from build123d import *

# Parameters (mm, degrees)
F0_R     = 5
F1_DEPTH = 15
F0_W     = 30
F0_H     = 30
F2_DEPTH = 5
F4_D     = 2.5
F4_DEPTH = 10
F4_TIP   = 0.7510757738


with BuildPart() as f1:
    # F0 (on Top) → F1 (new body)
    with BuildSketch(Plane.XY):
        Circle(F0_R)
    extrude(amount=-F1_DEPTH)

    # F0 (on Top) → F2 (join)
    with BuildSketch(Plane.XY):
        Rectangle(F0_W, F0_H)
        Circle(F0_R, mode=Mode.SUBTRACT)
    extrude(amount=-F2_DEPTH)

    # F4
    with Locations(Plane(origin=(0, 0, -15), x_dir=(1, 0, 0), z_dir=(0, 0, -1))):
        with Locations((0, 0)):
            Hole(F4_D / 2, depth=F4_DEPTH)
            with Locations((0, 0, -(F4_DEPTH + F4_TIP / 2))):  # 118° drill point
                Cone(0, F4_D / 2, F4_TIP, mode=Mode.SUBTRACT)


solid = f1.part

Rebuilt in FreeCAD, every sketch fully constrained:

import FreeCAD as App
import Part
import Sketcher

V = App.Vector


def add_polygon(sketch, points):
    """Adds a closed chain of lines whose ends are joined by coincident constraints."""
    first, n = sketch.GeometryCount, len(points)
    for a, b in zip(points, points[1:] + points[:1]):
        sketch.addGeometry(Part.LineSegment(App.Vector(*a, 0), App.Vector(*b, 0)), False)
    for i in range(n):
        sketch.addConstraint(Sketcher.Constraint("Coincident", first + i, 2, first + (i + 1) % n, 1))

doc = App.newDocument("Part")
params = doc.addObject("Spreadsheet::Sheet", "Params")
for row, (alias, value) in enumerate([
    ("sketch1_diameter", "10 mm"),
    ("pad1_length", "15 mm"),
    ("sketch2_diameter", "10 mm"),
    ("sketch2_width", "30 mm"),
    ("pad2_length", "5 mm"),
    ("sketch3_diameter", "2.5 mm"),
    ("hole_diameter", "2.5 mm"),
    ("hole_depth", "10 mm"),
], start=1):
    params.set(f"A{row}", alias)
    params.set(f"B{row}", "=" + value)
    params.setAlias(f"B{row}", alias)

body = doc.addObject("PartDesign::Body", "Body")

sketch1 = doc.addObject("Sketcher::SketchObject", "Sketch")
body.addObject(sketch1)
sketch1.AttachmentSupport = (doc.XY_Plane, [""])
sketch1.MapMode = "FlatFace"
sketch1.addGeometry(Part.Circle(V(0, 0, 0), V(0, 0, 1), 5), False)
sketch1.addConstraint([
    Sketcher.Constraint("Coincident", 0, 3, -1, 1),
    Sketcher.Constraint("Diameter", 0, 10.0),
])
sketch1.setExpression("Constraints[1]", "Params.sketch1_diameter")
pad1 = doc.addObject("PartDesign::Pad", "Pad")
body.addObject(pad1)
pad1.Profile = sketch1
pad1.setExpression("Length", "Params.pad1_length")
pad1.Reversed = True

sketch2 = doc.addObject("Sketcher::SketchObject", "Sketch001")
body.addObject(sketch2)
sketch2.AttachmentSupport = (doc.XY_Plane, [""])
sketch2.MapMode = "FlatFace"
add_polygon(sketch2, [(-15, 15), (-15, -15), (15, -15), (15, 15)])
sketch2.addGeometry(Part.Circle(V(0, 0, 0), V(0, 0, 1), 5), False)
sketch2.addConstraint([
    Sketcher.Constraint("Vertical", 0),
    Sketcher.Constraint("Horizontal", 1),
    Sketcher.Constraint("Vertical", 2),
    Sketcher.Constraint("Horizontal", 3),
    Sketcher.Constraint("Coincident", 4, 3, -1, 1),
    Sketcher.Constraint("Symmetric", 0, 2, 2, 2, -1, 1),
    Sketcher.Constraint("Equal", 3, 0),
    Sketcher.Constraint("Diameter", 4, 10.0),
    Sketcher.Constraint("DistanceX", 1, 1, 1, 2, 30.0),
])
sketch2.setExpression("Constraints[11]", "Params.sketch2_diameter")
sketch2.setExpression("Constraints[12]", "Params.sketch2_width")
pad2 = doc.addObject("PartDesign::Pad", "Pad001")
body.addObject(pad2)
pad2.Profile = sketch2
pad2.setExpression("Length", "Params.pad2_length")
pad2.Reversed = True

sketch3 = doc.addObject("Sketcher::SketchObject", "Sketch002")
body.addObject(sketch3)
sketch3.AttachmentSupport = (doc.XY_Plane, [""])
sketch3.MapMode = "FlatFace"
sketch3.AttachmentOffset = App.Placement(V(0, 0, -15), App.Rotation())
sketch3.addGeometry(Part.Circle(V(0, 0, 0), V(0, 0, 1), 1.2), False)
sketch3.addConstraint([
    Sketcher.Constraint("Coincident", 0, 3, -1, 1),
    Sketcher.Constraint("Diameter", 0, 2.5),
])
sketch3.setExpression("Constraints[1]", "Params.sketch3_diameter")
doc.recompute()
hole = doc.addObject("PartDesign::Hole", "Hole")
body.addObject(hole)
hole.Profile = sketch3
hole.ThreadType = "None"
hole.setExpression("Diameter", "Params.hole_diameter")
hole.DepthType = "Dimension"
hole.setExpression("Depth", "Params.hole_depth")
hole.DrillPoint = "Angled"
hole.DrillPointAngle = 118
hole.Reversed = True

doc.recompute()
